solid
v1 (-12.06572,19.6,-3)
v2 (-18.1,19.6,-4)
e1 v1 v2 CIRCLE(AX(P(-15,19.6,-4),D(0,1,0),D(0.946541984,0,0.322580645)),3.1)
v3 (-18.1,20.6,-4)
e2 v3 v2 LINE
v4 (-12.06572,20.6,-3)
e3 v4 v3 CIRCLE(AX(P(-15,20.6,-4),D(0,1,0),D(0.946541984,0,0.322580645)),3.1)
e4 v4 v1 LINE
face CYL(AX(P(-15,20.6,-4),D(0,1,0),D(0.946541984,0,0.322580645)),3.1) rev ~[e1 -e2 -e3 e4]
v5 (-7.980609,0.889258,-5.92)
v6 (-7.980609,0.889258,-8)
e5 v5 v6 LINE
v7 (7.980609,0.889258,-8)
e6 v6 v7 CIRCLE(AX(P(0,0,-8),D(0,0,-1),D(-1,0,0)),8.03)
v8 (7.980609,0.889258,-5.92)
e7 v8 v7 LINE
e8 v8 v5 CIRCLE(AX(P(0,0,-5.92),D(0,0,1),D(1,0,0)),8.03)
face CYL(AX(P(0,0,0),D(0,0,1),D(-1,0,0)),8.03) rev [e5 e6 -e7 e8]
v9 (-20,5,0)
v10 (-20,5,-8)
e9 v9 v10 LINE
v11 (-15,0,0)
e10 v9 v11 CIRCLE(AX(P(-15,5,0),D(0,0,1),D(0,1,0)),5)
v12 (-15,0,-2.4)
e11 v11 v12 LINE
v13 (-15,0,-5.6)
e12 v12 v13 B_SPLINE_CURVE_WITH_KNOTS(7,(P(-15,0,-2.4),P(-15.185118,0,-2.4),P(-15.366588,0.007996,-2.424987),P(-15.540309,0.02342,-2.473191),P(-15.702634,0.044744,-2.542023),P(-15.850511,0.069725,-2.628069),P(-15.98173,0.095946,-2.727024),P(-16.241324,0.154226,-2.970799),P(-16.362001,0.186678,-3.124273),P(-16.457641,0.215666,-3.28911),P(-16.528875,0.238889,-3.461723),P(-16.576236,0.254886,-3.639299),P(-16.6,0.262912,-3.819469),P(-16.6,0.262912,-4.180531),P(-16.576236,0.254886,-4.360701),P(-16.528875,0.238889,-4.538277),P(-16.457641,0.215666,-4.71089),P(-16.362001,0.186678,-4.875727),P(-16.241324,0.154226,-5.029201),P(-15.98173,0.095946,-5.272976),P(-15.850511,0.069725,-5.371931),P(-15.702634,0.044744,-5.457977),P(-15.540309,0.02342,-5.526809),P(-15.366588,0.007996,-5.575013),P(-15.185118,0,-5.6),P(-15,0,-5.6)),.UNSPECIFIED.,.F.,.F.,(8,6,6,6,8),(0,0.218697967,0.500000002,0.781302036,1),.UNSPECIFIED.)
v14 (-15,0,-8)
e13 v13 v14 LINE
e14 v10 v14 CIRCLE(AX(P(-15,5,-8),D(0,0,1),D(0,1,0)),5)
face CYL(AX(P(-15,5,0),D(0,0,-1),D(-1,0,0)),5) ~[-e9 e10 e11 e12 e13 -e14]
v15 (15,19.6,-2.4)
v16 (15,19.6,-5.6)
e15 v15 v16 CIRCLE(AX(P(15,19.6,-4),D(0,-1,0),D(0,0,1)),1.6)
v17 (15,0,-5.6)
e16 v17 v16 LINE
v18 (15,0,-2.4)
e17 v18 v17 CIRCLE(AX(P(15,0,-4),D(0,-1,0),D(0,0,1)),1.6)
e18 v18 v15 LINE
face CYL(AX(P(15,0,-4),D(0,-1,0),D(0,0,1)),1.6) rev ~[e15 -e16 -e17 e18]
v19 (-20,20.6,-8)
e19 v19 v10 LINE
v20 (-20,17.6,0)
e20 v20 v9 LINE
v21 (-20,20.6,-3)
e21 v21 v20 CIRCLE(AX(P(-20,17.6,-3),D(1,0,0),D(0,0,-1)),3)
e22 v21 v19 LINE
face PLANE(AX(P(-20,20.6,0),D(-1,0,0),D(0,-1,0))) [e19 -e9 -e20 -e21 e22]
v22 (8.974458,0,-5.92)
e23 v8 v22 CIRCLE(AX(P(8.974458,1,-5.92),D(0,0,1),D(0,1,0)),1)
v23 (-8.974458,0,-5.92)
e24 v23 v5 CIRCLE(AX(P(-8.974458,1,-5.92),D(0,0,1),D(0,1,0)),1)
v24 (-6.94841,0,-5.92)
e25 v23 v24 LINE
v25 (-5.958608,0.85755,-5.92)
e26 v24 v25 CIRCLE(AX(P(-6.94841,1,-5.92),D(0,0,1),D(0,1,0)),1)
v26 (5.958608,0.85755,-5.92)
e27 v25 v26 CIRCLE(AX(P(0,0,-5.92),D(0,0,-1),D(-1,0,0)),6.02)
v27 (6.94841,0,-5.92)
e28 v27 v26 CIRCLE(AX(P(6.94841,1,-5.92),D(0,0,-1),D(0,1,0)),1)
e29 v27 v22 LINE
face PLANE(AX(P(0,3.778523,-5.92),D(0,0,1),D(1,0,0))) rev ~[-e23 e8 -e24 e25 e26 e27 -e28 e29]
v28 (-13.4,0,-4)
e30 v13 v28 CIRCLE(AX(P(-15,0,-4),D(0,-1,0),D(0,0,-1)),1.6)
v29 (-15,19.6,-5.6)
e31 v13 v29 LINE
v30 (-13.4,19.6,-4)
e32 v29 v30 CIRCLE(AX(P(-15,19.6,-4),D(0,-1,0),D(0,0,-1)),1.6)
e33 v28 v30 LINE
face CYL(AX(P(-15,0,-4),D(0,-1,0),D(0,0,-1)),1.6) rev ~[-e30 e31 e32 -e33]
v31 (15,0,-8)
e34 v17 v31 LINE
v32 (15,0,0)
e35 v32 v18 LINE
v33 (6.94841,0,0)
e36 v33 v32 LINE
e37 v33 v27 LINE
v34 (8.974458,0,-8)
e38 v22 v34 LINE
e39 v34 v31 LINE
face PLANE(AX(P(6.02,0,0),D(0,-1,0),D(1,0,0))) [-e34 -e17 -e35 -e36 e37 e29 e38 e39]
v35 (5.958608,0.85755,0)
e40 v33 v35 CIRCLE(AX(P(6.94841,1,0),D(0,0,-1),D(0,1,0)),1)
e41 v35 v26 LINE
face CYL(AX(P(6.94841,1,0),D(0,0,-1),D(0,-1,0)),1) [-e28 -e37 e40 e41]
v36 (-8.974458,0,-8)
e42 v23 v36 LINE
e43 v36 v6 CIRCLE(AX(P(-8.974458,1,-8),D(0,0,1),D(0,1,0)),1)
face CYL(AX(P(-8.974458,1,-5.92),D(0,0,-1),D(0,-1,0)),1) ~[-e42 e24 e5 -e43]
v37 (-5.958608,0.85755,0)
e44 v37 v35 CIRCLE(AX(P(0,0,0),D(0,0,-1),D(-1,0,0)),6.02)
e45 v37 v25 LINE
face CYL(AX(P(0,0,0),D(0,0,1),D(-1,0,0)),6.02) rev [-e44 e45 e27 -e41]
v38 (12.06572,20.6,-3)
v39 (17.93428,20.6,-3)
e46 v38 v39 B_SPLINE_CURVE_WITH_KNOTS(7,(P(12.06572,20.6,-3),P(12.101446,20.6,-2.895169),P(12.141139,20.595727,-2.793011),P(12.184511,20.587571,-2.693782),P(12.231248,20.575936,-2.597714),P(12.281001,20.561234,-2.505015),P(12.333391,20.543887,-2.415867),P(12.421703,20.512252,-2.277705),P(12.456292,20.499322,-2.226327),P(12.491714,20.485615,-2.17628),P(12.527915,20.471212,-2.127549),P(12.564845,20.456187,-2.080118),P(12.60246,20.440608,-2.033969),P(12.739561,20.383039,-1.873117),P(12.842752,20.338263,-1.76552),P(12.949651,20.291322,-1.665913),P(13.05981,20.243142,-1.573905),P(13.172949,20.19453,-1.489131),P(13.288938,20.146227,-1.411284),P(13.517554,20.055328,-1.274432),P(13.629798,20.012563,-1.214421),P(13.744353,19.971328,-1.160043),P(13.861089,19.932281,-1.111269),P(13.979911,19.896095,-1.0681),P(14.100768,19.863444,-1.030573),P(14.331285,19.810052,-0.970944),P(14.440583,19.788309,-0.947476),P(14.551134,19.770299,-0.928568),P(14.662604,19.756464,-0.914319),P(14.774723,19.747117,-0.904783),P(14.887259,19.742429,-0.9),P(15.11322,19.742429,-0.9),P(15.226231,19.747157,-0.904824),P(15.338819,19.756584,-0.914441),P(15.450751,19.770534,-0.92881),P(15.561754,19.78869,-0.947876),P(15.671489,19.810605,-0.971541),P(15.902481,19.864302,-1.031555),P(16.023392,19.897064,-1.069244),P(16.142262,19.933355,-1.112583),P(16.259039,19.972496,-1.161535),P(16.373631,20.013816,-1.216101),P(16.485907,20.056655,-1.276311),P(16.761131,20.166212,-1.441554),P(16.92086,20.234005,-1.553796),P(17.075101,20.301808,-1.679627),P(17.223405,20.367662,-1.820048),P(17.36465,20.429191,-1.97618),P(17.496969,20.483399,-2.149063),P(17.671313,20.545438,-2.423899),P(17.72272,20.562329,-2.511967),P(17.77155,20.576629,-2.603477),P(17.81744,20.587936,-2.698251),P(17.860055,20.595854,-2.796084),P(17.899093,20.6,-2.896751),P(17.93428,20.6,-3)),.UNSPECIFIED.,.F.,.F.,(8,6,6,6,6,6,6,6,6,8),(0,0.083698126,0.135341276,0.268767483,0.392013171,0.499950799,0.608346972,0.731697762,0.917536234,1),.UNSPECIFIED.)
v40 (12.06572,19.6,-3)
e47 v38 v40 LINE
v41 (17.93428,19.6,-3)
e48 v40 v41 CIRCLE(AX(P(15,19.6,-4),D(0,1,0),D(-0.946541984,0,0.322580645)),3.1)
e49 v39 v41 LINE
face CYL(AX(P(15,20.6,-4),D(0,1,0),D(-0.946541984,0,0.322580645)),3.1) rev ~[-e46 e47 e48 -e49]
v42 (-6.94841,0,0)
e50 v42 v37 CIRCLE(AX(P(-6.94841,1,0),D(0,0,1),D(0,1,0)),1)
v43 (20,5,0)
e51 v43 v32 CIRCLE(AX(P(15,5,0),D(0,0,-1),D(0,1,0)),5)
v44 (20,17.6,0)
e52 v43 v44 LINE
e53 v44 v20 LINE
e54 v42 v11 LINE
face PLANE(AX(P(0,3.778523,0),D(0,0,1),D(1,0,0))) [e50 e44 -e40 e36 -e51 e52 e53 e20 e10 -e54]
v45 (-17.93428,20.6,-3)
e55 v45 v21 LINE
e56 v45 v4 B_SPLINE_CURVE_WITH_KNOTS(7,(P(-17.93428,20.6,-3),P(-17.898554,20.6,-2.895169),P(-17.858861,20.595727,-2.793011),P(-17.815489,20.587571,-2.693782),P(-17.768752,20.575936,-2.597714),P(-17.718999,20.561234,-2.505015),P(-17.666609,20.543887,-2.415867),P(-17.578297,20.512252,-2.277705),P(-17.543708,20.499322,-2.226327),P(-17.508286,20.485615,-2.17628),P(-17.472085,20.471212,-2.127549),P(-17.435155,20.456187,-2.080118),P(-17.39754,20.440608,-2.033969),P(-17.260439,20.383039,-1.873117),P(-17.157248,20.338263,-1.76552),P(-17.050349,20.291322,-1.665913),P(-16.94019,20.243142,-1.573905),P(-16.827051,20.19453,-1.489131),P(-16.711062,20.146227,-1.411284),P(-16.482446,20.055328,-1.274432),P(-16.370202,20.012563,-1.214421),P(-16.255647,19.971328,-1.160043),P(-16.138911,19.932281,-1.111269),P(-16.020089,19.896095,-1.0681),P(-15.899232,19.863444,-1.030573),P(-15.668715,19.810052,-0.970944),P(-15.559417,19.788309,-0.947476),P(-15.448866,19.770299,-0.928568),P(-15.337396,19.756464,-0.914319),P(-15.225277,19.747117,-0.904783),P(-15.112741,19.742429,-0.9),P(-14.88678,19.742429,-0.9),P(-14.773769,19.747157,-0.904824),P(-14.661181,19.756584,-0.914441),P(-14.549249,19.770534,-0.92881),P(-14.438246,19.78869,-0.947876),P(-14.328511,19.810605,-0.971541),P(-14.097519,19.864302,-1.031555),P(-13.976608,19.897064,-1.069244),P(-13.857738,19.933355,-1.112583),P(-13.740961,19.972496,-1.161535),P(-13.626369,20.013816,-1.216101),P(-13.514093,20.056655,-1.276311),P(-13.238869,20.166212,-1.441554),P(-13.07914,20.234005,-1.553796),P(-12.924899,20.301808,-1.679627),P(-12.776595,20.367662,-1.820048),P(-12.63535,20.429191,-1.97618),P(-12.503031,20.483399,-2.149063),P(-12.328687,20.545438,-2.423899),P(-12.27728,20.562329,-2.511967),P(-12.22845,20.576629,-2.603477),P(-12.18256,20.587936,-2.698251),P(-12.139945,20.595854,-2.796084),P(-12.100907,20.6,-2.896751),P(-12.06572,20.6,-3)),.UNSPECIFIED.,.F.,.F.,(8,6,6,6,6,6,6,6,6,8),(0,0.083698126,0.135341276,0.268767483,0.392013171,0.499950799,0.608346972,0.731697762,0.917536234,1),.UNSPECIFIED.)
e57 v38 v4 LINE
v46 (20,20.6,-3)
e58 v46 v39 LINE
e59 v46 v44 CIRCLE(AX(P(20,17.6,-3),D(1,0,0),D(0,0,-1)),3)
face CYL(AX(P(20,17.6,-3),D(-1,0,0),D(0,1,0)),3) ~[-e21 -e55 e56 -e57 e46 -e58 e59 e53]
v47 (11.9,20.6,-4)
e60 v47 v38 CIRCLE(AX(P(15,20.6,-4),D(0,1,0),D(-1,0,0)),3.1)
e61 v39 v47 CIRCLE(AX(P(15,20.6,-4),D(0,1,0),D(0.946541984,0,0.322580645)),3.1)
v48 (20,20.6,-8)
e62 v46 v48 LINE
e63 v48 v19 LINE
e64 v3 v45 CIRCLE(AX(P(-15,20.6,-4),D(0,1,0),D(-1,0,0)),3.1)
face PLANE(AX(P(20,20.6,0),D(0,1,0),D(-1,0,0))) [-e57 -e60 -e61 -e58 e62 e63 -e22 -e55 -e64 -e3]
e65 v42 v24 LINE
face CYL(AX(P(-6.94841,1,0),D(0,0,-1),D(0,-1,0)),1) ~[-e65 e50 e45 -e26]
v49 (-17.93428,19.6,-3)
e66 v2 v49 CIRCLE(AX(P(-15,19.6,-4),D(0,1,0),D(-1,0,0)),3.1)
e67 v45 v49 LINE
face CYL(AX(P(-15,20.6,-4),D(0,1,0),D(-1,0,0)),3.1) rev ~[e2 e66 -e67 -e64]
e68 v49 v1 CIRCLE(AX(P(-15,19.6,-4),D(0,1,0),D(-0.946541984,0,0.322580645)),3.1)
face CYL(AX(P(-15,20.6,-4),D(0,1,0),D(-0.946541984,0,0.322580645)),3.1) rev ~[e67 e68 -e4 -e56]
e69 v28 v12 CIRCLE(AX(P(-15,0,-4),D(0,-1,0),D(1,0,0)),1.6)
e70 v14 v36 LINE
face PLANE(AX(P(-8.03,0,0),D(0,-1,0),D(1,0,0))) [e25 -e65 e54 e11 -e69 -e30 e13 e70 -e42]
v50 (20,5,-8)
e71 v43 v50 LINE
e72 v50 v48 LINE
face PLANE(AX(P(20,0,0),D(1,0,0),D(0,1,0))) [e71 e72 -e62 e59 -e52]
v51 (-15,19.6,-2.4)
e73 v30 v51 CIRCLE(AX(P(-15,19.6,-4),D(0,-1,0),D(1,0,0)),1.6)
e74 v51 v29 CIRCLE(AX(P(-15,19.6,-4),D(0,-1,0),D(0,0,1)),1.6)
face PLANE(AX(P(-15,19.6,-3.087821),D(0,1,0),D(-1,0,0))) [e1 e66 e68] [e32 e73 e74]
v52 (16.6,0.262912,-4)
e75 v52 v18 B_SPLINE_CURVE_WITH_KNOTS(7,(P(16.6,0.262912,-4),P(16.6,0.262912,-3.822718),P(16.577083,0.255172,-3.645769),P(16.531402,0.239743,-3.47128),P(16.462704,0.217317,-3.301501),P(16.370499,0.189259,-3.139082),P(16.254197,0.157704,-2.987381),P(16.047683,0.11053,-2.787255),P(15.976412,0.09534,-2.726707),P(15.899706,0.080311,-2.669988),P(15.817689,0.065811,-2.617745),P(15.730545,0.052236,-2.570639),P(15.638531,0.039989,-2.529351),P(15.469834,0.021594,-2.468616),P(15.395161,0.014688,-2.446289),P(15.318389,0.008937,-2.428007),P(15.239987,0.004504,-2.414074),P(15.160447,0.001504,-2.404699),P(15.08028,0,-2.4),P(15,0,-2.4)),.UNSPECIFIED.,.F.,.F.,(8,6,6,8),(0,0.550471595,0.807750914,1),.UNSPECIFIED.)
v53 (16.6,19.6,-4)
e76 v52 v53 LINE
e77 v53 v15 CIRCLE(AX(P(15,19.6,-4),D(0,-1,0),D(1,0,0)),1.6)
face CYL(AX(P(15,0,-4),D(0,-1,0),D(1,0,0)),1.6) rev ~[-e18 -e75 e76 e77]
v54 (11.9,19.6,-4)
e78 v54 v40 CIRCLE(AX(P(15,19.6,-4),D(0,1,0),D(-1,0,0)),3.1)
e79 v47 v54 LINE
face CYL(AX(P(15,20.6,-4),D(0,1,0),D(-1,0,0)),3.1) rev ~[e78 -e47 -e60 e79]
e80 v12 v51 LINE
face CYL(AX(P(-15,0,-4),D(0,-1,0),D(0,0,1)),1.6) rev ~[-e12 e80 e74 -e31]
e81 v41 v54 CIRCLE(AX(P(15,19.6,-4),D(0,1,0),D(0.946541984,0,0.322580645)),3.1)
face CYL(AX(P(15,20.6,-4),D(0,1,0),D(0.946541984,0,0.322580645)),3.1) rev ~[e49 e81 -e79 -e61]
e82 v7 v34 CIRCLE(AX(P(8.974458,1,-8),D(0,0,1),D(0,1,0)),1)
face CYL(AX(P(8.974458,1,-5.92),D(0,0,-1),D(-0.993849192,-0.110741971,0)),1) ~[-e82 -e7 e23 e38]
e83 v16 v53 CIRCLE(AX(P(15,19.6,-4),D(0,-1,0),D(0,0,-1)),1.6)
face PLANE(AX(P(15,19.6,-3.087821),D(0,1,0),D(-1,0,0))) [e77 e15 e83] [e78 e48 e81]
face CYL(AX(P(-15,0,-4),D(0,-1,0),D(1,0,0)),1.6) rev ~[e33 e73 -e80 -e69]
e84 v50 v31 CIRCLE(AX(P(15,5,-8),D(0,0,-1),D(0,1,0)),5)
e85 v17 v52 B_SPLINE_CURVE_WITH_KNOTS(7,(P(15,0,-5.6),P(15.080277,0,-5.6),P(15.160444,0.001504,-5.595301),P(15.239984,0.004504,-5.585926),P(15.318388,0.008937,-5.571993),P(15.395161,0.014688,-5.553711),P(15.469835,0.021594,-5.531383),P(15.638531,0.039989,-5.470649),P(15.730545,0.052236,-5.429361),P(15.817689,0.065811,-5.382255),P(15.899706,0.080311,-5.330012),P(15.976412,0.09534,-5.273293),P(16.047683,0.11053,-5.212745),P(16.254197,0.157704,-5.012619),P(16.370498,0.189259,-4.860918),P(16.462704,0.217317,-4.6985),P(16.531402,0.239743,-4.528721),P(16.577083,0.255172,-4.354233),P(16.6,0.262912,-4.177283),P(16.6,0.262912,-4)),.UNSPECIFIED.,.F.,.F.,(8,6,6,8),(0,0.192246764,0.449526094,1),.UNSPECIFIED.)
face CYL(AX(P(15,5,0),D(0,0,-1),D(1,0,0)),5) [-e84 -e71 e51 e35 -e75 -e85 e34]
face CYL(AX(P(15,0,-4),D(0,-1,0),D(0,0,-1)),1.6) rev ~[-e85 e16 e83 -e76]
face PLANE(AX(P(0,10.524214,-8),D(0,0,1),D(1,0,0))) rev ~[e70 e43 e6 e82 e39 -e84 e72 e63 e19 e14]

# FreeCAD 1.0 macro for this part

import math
import FreeCAD as App
import Part
import Sketcher
Q = App.Units.Quantity


def edges_at(feature, points):
    """Names of the edges that pass closest to the given points."""
    edges = feature.Shape.Edges
    near = lambda p: min(range(len(edges)), key=lambda i: edges[i].distToShape(Part.Vertex(*p))[0])
    return sorted({f"Edge{near(p) + 1}" for p in points})

doc = App.newDocument("Part")
body = doc.addObject("PartDesign::Body", "Body")

# Sketch on XY plane
sketch1 = body.newObject("Sketcher::SketchObject", "Sketch")
sketch1.AttachmentSupport = (doc.getObject("XY_Plane"), [""])
sketch1.MapMode = "FlatFace"
sketch1.addGeometry([
    Part.LineSegment(App.Vector(-20, 21, 0), App.Vector(-20, 0, 0)),  # 0
    Part.LineSegment(App.Vector(-20, 0, 0), App.Vector(-8, 0, 0)),  # 1
    Part.ArcOfCircle(Part.Circle(App.Vector(0, 0, 0), App.Vector(0, 0, 1), 8), math.radians(0), math.radians(180)),  # 2
    Part.LineSegment(App.Vector(8, 0, 0), App.Vector(20, 0, 0)),  # 3
    Part.LineSegment(App.Vector(20, 0, 0), App.Vector(20, 21, 0)),  # 4
    Part.LineSegment(App.Vector(20, 21, 0), App.Vector(-20, 21, 0)),  # 5
], False)
sketch1.addConstraint([
    Sketcher.Constraint("Coincident", 0, 2, 1, 1),
    Sketcher.Constraint("Coincident", 1, 2, 2, 2),
    Sketcher.Constraint("Coincident", 2, 1, 3, 1),
    Sketcher.Constraint("Coincident", 3, 2, 4, 1),
    Sketcher.Constraint("Coincident", 4, 2, 5, 1),
    Sketcher.Constraint("Coincident", 5, 2, 0, 1),
    Sketcher.Constraint("Vertical", 0),
    Sketcher.Constraint("Horizontal", 1),
    Sketcher.Constraint("Horizontal", 3),
    Sketcher.Constraint("Vertical", 4),
    Sketcher.Constraint("Horizontal", 5),
    Sketcher.Constraint("Coincident", 2, 3, -1, 1),
    Sketcher.Constraint("Symmetric", 0, 2, 3, 2, -1, 1),
    Sketcher.Constraint("PointOnObject", 0, 2, -1),
    Sketcher.Constraint("DistanceX", 5, 2, 5, 1, Q("40 mm")),
    Sketcher.Constraint("Radius", 2, Q("8.03 mm")),
    Sketcher.Constraint("DistanceY", 0, 2, 0, 1, Q("20.6 mm")),
])
pad1 = body.newObject("PartDesign::Pad", "Pad")
pad1.Profile = sketch1
pad1.Length = 8
pad1.Reversed = True

# Sketch on XY plane
sketch2 = body.newObject("Sketcher::SketchObject", "Sketch001")
sketch2.AttachmentSupport = (doc.getObject("XY_Plane"), [""])
sketch2.MapMode = "FlatFace"
sketch2.addGeometry([
    Part.ArcOfCircle(Part.Circle(App.Vector(0, 0, 0), App.Vector(0, 0, 1), 8), math.radians(0), math.radians(180)),
    Part.LineSegment(App.Vector(-8, 0, 0), App.Vector(-6, 0, 0)),
    Part.ArcOfCircle(Part.Circle(App.Vector(0, 0, 0), App.Vector(0, 0, 1), 6), math.radians(0), math.radians(180)),
    Part.LineSegment(App.Vector(6, 0, 0), App.Vector(8, 0, 0)),
], False)
sketch2.addConstraint([
    Sketcher.Constraint("Coincident", 0, 2, 1, 1),
    Sketcher.Constraint("Coincident", 1, 2, 2, 2),
    Sketcher.Constraint("Coincident", 2, 1, 3, 1),
    Sketcher.Constraint("Coincident", 3, 2, 0, 1),
    Sketcher.Constraint("Horizontal", 1),
    Sketcher.Constraint("Horizontal", 3),
    Sketcher.Constraint("Coincident", 0, 3, -1, 1),
    Sketcher.Constraint("Coincident", 2, 3, -1, 1),
    Sketcher.Constraint("PointOnObject", 0, 2, -1),
    Sketcher.Constraint("PointOnObject", 2, 1, -1),
    Sketcher.Constraint("Radius", 0, Q("8.03 mm")),
    Sketcher.Constraint("Radius", 2, Q("6.02 mm")),
])
pad2 = body.newObject("PartDesign::Pad", "Pad001")
pad2.Profile = sketch2
pad2.Length = 5.92
pad2.Reversed = True
doc.recompute()

fillet = body.newObject("PartDesign::Fillet", "Fillet")
fillet.Base = (pad2, edges_at(pad2, [(0, 20.6, 0)]))
fillet.Radius = 3
doc.recompute()

fillet2 = body.newObject("PartDesign::Fillet", "Fillet001")
fillet2.Base = (fillet, edges_at(fillet, [(-20, 0, -4), (20, 0, -4)]))
fillet2.Radius = 5

# Sketch on XZ plane
sketch3 = body.newObject("Sketcher::SketchObject", "Sketch002")
sketch3.AttachmentSupport = (doc.getObject("XZ_Plane"), [""])
sketch3.MapMode = "FlatFace"
sketch3.addGeometry([
    Part.ArcOfCircle(Part.Circle(App.Vector(-15, -4, 0), App.Vector(0, 0, 1), 1.6), math.radians(90), math.radians(270)),
    Part.ArcOfCircle(Part.Circle(App.Vector(-15, -4, 0), App.Vector(0, 0, 1), 1.6), math.radians(-90), math.radians(0)),
    Part.ArcOfCircle(Part.Circle(App.Vector(-15, -4, 0), App.Vector(0, 0, 1), 1.6), math.radians(0), math.radians(90)),
], False)
sketch3.addConstraint([
    Sketcher.Constraint("Tangent", 0, 2, 1, 1),
    Sketcher.Constraint("Tangent", 1, 2, 2, 1),
    Sketcher.Constraint("Tangent", 2, 2, 0, 1),
    Sketcher.Constraint("Horizontal", 2, 3, 1, 2),
    Sketcher.Constraint("Vertical", 2, 3, 0, 2),
    Sketcher.Constraint("Vertical", 0, 2, 2, 2),
    Sketcher.Constraint("Radius", 0, Q("1.6 mm")),
    Sketcher.Constraint("DistanceX", 0, 3, -1, 1, Q("15 mm")),
    Sketcher.Constraint("DistanceY", 0, 3, -1, 1, Q("4 mm")),
])
pocket1 = body.newObject("PartDesign::Pocket", "Pocket")
pocket1.Profile = sketch3
pocket1.Type = "ThroughAll"

# Sketch on XZ plane
sketch4 = body.newObject("Sketcher::SketchObject", "Sketch003")
sketch4.AttachmentSupport = (doc.getObject("XZ_Plane"), [""])
sketch4.MapMode = "FlatFace"
sketch4.addGeometry([
    Part.ArcOfCircle(Part.Circle(App.Vector(15, -4, 0), App.Vector(0, 0, 1), 1.6), math.radians(90), math.radians(270)),
    Part.ArcOfCircle(Part.Circle(App.Vector(15, -4, 0), App.Vector(0, 0, 1), 1.6), math.radians(-90), math.radians(0)),
    Part.ArcOfCircle(Part.Circle(App.Vector(15, -4, 0), App.Vector(0, 0, 1), 1.6), math.radians(0), math.radians(90)),
], False)
sketch4.addConstraint([
    Sketcher.Constraint("Tangent", 0, 2, 1, 1),
    Sketcher.Constraint("Tangent", 1, 2, 2, 1),
    Sketcher.Constraint("Tangent", 2, 2, 0, 1),
    Sketcher.Constraint("Horizontal", 2, 3, 1, 2),
    Sketcher.Constraint("Vertical", 2, 3, 0, 2),
    Sketcher.Constraint("Vertical", 0, 2, 2, 2),
    Sketcher.Constraint("Radius", 0, Q("1.6 mm")),
    Sketcher.Constraint("DistanceX", -1, 1, 0, 3, Q("15 mm")),
    Sketcher.Constraint("DistanceY", 0, 3, -1, 1, Q("4 mm")),
])
pocket2 = body.newObject("PartDesign::Pocket", "Pocket001")
pocket2.Profile = sketch4
pocket2.Type = "ThroughAll"
doc.recompute()

fillet3 = body.newObject("PartDesign::Fillet", "Fillet002")
fillet3.Base = (pocket2, edges_at(pocket2, [
    (-8.03, 0, -6.96),
    (-6.02, 0, -2.96),
    (6.02, 0, -2.96),
    (8.03, 0, -6.96),
]))
fillet3.Radius = 1

# Sketch on XZ plane
sketch5 = body.newObject("Sketcher::SketchObject", "Sketch004")
sketch5.AttachmentSupport = (doc.getObject("XZ_Plane"), [""])
sketch5.MapMode = "FlatFace"
sketch5.AttachmentOffset = App.Placement(App.Vector(0, 0, -20.6), App.Rotation())
sketch5.addGeometry([
    Part.ArcOfCircle(Part.Circle(App.Vector(15, -4, 0), App.Vector(0, 0, 1), 3.1), math.radians(19), math.radians(161)),  # 0
    Part.ArcOfCircle(Part.Circle(App.Vector(15, -4, 0), App.Vector(0, 0, 1), 3.1), math.radians(180), math.radians(379)),  # 1
    Part.ArcOfCircle(Part.Circle(App.Vector(15, -4, 0), App.Vector(0, 0, 1), 3.1), math.radians(161.18), math.radians(180)),  # 2
    Part.ArcOfCircle(Part.Circle(App.Vector(-15, -4, 0), App.Vector(0, 0, 1), 3.1), math.radians(19), math.radians(161)),  # 3
    Part.ArcOfCircle(Part.Circle(App.Vector(-15, -4, 0), App.Vector(0, 0, 1), 3.1), math.radians(180), math.radians(379)),  # 4
    Part.ArcOfCircle(Part.Circle(App.Vector(-15, -4, 0), App.Vector(0, 0, 1), 3.1), math.radians(161.18), math.radians(180)),  # 5
], False)
sketch5.addConstraint([
    Sketcher.Constraint("Tangent", 0, 1, 1, 2),
    Sketcher.Constraint("Tangent", 1, 1, 2, 2),
    Sketcher.Constraint("Tangent", 2, 1, 0, 2),
    Sketcher.Constraint("Tangent", 3, 1, 4, 2),
    Sketcher.Constraint("Tangent", 4, 1, 5, 2),
    Sketcher.Constraint("Tangent", 5, 1, 3, 2),
    Sketcher.Constraint("Equal", 2, 3),
    Sketcher.Constraint("Symmetric", 0, 3, 3, 3, -2),
    Sketcher.Constraint("Horizontal", 5, 3, 1, 1),
    Sketcher.Constraint("Horizontal", 0, 1, 2, 1),
    Sketcher.Constraint("Horizontal", 2, 1, 3, 1),
    Sketcher.Constraint("Horizontal", 1, 1, 4, 1),
    Sketcher.Constraint("Horizontal", 3, 1, 5, 1),
    Sketcher.Constraint("Radius", 0, Q("3.1 mm")),
    Sketcher.Constraint("DistanceX", -1, 1, 0, 3, Q("15 mm")),
    Sketcher.Constraint("DistanceY", 0, 3, -1, 1, Q("4 mm")),
    Sketcher.Constraint("DistanceY", 0, 1, -1, 1, Q("3 mm")),
])
pocket3 = body.newObject("PartDesign::Pocket", "Pocket002")
pocket3.Profile = sketch5
pocket3.Length = 1
pocket3.Reversed = True

doc.recompute()
